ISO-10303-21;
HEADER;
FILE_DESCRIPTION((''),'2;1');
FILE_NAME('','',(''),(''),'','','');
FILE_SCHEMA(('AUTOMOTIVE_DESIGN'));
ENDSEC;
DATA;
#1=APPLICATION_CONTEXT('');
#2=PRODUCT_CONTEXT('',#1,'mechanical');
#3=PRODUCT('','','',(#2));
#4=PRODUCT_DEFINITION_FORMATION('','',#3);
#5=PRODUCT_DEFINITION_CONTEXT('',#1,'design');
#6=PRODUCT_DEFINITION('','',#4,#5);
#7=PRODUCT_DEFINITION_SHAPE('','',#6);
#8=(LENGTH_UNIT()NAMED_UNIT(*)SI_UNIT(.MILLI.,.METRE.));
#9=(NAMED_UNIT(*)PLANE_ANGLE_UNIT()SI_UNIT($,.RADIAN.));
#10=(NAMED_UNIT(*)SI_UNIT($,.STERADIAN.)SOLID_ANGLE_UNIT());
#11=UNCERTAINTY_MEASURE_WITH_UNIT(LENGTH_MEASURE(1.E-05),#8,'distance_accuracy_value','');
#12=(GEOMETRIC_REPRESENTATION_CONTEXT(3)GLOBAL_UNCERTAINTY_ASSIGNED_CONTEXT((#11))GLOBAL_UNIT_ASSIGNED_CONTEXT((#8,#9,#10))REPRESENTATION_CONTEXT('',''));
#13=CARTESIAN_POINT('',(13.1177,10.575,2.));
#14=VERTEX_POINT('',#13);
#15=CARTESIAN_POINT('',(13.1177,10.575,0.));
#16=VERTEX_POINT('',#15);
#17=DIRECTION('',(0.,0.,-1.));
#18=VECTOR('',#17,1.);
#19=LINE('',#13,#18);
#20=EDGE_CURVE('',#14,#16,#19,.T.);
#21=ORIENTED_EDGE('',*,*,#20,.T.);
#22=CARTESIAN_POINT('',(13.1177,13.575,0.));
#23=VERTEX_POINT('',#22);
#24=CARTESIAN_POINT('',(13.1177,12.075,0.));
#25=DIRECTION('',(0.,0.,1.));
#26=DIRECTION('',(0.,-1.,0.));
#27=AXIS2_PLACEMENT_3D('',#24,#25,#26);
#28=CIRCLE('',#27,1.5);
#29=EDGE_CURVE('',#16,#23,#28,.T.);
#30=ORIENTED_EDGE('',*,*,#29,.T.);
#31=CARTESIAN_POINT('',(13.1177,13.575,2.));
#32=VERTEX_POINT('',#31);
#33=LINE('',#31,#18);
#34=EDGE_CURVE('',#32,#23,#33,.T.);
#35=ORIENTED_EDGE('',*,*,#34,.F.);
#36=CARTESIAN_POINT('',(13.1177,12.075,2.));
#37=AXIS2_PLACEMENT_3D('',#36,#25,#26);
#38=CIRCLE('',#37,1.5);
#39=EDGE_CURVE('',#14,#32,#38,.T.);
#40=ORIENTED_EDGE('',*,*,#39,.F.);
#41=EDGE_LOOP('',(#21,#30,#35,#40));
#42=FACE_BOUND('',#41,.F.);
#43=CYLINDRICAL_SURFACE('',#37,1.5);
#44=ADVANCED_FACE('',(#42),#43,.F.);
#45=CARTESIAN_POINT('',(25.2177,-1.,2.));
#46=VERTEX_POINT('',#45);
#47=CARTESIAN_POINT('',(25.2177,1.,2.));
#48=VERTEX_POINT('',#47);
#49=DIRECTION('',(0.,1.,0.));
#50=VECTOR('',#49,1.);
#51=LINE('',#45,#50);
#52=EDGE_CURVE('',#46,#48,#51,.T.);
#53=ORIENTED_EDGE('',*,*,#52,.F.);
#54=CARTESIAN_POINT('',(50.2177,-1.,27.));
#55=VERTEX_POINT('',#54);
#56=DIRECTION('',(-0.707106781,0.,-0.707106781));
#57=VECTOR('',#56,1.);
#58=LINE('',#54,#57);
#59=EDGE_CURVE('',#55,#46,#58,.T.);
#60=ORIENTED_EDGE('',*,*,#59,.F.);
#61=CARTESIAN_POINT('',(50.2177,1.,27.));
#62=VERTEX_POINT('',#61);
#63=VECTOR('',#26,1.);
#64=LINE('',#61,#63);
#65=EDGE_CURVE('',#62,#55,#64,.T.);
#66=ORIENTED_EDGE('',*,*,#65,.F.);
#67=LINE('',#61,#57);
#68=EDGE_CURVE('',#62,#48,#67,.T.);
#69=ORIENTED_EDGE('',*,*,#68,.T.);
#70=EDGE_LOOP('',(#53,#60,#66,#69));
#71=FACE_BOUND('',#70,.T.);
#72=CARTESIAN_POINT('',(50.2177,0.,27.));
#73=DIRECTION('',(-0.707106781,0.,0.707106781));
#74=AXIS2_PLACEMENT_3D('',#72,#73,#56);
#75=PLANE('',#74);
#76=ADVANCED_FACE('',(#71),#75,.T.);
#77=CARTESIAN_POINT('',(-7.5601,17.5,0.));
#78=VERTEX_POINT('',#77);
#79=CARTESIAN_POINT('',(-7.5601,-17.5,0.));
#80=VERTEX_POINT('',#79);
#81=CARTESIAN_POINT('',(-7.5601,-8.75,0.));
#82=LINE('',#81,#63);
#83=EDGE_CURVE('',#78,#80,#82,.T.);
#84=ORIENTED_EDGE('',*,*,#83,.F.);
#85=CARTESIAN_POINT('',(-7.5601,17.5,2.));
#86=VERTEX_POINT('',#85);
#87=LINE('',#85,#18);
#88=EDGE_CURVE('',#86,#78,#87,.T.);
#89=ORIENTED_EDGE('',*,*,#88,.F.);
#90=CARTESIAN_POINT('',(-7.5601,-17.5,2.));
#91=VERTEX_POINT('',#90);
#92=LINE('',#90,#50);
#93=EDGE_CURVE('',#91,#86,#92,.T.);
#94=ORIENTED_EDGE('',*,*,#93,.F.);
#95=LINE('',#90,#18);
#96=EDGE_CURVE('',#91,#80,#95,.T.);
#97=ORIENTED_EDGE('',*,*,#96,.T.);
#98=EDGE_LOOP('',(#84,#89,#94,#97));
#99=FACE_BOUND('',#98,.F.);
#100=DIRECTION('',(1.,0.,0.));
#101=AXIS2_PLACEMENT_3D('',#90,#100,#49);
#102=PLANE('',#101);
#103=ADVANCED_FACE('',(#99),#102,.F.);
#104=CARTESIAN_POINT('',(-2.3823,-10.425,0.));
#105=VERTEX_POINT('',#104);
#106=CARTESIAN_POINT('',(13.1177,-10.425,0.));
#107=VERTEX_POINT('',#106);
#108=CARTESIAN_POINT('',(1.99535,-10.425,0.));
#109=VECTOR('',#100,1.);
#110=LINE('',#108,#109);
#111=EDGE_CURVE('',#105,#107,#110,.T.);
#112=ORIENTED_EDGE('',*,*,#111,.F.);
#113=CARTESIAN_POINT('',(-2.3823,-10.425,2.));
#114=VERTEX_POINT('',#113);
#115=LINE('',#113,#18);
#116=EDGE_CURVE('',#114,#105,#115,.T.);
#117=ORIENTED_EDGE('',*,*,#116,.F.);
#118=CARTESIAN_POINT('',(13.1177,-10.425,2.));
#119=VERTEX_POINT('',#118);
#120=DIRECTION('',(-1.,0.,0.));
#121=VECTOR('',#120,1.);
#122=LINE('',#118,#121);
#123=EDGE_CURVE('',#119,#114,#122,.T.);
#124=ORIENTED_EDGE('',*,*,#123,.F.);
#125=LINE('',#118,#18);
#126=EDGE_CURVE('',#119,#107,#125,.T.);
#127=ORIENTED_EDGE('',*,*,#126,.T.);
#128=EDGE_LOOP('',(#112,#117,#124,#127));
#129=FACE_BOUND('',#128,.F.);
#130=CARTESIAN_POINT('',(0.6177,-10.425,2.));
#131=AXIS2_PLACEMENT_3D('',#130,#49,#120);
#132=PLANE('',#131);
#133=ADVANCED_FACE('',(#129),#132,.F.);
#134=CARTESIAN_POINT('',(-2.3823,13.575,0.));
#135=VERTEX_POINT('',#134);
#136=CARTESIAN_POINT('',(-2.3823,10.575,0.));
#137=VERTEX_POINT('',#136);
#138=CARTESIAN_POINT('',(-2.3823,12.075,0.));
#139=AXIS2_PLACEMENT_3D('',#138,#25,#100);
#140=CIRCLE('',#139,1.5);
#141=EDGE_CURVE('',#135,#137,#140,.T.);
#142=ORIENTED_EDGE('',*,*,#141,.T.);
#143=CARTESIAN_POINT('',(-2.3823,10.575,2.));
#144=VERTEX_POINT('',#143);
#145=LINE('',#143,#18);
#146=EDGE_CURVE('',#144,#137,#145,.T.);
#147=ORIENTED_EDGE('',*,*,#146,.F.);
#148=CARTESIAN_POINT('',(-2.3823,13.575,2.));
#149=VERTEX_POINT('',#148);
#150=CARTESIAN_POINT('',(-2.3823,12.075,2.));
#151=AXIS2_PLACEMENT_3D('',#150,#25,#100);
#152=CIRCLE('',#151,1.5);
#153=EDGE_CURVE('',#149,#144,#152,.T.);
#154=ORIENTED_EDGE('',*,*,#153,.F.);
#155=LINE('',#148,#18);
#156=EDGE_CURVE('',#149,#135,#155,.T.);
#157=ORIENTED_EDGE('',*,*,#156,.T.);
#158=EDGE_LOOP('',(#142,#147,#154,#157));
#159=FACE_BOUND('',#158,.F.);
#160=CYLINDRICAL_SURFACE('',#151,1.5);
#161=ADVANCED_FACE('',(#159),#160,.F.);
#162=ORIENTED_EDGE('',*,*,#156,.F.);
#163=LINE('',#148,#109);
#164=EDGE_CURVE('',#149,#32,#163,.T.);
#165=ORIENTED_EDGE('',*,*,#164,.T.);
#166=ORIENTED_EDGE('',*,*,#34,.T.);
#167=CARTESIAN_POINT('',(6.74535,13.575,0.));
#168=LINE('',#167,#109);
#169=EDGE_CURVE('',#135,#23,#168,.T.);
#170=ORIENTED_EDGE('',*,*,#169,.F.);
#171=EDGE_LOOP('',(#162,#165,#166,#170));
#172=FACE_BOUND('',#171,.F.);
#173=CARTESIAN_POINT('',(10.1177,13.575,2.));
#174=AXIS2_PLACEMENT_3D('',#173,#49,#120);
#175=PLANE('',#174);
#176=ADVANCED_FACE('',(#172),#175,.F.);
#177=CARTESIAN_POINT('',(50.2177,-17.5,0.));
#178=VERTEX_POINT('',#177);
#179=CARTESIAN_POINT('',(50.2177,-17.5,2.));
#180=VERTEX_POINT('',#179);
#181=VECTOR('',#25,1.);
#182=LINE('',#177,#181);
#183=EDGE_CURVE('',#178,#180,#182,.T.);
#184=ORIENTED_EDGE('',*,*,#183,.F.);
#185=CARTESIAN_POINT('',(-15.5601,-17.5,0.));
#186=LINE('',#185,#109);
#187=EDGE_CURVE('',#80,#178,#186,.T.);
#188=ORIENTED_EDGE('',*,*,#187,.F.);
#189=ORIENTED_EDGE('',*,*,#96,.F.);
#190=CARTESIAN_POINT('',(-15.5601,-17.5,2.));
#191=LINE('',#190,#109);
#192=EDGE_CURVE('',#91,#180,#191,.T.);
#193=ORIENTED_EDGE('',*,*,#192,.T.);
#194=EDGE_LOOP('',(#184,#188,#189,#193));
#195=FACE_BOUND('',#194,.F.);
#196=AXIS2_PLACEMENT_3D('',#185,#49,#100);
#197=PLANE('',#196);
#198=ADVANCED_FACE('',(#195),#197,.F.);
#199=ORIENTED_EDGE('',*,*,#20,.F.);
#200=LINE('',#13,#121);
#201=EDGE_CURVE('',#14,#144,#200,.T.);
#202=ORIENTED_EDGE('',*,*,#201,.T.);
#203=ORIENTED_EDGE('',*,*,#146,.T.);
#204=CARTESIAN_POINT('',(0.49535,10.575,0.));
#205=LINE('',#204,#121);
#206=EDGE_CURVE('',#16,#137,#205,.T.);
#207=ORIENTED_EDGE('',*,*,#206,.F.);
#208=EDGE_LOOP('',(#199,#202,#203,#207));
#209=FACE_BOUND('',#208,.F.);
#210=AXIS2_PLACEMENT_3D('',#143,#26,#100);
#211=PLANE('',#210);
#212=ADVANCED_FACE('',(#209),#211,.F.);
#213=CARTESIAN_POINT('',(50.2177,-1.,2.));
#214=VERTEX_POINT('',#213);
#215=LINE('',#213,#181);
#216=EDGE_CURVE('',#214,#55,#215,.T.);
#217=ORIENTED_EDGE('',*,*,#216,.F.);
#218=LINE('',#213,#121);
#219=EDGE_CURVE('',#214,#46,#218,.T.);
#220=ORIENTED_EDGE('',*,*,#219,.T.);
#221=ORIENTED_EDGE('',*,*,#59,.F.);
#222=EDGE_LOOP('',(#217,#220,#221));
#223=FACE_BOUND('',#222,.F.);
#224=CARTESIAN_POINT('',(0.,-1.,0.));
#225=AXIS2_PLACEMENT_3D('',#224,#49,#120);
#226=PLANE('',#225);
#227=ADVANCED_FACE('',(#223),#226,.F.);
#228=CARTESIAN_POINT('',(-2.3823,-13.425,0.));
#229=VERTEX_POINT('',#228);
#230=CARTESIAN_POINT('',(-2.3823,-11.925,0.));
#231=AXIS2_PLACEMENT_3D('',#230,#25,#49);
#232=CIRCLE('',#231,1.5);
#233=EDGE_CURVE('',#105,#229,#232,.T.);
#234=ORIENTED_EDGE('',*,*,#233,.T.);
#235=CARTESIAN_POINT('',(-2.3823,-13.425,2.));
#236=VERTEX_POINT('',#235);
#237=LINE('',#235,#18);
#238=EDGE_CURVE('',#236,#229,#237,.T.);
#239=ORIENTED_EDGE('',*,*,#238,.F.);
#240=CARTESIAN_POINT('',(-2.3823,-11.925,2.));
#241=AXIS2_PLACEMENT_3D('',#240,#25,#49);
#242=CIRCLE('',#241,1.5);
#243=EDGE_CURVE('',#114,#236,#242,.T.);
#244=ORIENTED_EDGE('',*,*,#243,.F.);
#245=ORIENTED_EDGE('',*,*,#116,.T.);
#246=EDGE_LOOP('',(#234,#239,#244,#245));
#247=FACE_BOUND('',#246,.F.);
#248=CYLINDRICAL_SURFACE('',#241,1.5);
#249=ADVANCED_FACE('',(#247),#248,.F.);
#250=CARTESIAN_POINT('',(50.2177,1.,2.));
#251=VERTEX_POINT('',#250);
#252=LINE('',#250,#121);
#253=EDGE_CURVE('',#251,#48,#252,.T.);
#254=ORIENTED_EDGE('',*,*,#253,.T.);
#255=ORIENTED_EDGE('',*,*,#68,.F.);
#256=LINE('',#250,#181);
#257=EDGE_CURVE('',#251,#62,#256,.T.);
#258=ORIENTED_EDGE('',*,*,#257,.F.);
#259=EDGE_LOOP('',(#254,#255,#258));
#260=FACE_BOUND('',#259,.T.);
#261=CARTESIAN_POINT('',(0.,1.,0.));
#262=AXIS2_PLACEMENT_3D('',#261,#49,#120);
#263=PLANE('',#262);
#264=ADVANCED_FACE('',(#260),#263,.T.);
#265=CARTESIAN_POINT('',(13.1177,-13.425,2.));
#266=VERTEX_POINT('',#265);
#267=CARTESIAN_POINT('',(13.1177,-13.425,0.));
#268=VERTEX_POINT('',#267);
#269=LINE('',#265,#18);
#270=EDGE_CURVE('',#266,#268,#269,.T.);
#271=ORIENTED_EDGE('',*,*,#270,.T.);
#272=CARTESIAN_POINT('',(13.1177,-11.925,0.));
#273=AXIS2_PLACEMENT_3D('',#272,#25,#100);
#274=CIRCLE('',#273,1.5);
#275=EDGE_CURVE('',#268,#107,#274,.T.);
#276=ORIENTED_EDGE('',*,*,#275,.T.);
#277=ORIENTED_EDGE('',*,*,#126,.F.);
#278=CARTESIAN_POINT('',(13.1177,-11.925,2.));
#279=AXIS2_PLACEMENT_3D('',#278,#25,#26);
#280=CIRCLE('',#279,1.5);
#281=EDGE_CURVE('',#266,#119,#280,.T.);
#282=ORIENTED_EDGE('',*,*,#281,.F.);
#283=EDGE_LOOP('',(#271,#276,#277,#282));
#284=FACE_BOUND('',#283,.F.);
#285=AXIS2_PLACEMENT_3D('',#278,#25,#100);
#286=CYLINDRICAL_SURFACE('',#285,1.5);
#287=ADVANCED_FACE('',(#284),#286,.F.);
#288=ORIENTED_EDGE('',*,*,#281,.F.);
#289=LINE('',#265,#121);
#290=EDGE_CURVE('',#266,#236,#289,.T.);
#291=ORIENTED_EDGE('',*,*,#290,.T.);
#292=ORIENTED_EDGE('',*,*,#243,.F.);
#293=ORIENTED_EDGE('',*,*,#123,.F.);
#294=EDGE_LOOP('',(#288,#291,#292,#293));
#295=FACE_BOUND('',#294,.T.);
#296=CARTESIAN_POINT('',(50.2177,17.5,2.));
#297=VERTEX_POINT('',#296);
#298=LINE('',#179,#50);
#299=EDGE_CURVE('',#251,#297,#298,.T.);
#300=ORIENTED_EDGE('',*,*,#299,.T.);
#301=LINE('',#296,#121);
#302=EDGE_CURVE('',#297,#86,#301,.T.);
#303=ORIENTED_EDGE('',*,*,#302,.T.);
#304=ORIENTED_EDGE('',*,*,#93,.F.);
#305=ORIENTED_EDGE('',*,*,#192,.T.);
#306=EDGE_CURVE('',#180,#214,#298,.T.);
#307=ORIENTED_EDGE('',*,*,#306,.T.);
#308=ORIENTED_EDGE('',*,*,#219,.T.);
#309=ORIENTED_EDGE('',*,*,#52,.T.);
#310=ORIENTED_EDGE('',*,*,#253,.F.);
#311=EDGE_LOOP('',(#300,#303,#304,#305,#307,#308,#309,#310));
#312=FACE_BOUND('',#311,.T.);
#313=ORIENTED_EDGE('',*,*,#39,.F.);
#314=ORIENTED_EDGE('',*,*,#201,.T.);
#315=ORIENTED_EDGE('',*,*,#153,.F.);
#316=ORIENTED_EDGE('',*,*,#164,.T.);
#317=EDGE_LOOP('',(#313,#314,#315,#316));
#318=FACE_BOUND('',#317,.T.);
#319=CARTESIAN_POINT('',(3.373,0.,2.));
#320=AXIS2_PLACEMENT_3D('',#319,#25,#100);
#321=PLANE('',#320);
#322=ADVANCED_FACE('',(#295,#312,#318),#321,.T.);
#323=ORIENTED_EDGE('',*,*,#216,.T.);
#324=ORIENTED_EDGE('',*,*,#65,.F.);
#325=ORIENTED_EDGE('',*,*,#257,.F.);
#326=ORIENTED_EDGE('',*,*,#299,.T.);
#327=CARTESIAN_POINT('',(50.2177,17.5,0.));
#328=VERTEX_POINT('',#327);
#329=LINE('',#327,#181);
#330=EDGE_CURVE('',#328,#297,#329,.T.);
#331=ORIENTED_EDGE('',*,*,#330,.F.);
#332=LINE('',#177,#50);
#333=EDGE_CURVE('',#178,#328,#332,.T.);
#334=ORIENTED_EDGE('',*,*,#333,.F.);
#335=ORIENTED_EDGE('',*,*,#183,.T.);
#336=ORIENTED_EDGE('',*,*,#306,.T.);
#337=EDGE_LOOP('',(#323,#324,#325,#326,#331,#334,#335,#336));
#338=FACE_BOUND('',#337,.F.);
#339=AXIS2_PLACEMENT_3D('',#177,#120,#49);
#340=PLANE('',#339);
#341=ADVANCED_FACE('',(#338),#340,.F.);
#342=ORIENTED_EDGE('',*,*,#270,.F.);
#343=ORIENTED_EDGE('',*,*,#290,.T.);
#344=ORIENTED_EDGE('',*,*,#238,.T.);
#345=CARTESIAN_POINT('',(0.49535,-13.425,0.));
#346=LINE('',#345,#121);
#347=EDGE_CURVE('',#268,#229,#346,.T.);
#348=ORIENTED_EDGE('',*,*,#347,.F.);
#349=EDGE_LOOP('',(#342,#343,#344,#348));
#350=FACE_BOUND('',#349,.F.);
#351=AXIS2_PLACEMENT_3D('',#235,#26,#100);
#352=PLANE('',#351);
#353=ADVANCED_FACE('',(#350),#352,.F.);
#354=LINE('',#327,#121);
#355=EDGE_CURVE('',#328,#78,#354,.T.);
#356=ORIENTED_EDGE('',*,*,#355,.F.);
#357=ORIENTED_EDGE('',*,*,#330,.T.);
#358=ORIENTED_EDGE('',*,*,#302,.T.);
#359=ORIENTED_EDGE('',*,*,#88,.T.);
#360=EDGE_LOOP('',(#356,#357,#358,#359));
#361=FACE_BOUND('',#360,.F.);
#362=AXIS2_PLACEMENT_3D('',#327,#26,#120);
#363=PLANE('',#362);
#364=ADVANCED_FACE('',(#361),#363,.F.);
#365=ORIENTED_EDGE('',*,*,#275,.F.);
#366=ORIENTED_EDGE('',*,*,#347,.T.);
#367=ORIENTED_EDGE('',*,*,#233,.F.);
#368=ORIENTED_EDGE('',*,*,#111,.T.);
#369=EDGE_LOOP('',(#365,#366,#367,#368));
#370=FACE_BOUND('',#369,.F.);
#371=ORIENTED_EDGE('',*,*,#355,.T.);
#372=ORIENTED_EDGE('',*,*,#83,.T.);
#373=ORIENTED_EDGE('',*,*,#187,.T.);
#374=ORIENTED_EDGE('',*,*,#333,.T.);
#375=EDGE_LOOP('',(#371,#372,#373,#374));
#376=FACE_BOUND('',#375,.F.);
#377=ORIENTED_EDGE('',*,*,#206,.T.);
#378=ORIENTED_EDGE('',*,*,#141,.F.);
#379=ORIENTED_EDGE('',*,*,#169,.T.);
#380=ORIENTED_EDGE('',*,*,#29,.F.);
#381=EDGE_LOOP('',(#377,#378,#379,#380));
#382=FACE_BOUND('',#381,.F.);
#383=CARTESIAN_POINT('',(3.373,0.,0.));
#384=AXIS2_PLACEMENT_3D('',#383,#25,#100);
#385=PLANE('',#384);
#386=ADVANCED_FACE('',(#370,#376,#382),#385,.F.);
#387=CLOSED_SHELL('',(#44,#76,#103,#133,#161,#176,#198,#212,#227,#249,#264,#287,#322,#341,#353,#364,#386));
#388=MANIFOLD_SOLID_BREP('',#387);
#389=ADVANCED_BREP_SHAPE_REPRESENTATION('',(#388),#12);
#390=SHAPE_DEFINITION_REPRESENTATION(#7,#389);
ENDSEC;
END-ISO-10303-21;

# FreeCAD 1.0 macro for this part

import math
import FreeCAD as App
import Part
import Sketcher

V = App.Vector
Q = App.Units.Quantity

doc = App.newDocument("Part")
body = doc.addObject("PartDesign::Body", "Body")

# Sketch on XY plane
sketch1 = body.newObject("Sketcher::SketchObject", "Sketch")
sketch1.AttachmentSupport = (doc.getObject("XY_Plane"), [""])
sketch1.MapMode = "FlatFace"
sketch1.addGeometry(Part.LineSegment(V(-16, 18, 0), V(-16, -18, 0)), False)
sketch1.addGeometry(Part.LineSegment(V(-16, -18, 0), V(50, -18, 0)), False)
sketch1.addGeometry(Part.LineSegment(V(50, -18, 0), V(50, 18, 0)), False)
sketch1.addGeometry(Part.LineSegment(V(50, 18, 0), V(-16, 18, 0)), False)
sketch1.addConstraint(Sketcher.Constraint("Coincident", 0, 2, 1, 1))
sketch1.addConstraint(Sketcher.Constraint("Coincident", 1, 2, 2, 1))
sketch1.addConstraint(Sketcher.Constraint("Coincident", 2, 2, 3, 1))
sketch1.addConstraint(Sketcher.Constraint("Coincident", 3, 2, 0, 1))
sketch1.addConstraint(Sketcher.Constraint("Vertical", 0))
sketch1.addConstraint(Sketcher.Constraint("Horizontal", 1))
sketch1.addConstraint(Sketcher.Constraint("Vertical", 2))
sketch1.addConstraint(Sketcher.Constraint("Horizontal", 3))
sketch1.addConstraint(Sketcher.Constraint("DistanceY", 0, 2, 0, 1, Q("35 mm")))
sketch1.addConstraint(Sketcher.Constraint("DistanceY", 0, 2, -1, 1, Q("17.5 mm")))
sketch1.addConstraint(Sketcher.Constraint("DistanceX", 0, 2, -1, 1, Q("15.56 mm")))
sketch1.addConstraint(Sketcher.Constraint("DistanceX", 1, 1, 1, 2, Q("65.7778 mm")))
pad1 = body.newObject("PartDesign::Pad", "Pad")
pad1.Profile = sketch1
pad1.Length = 2

# Sketch on XZ plane
sketch2 = body.newObject("Sketcher::SketchObject", "Sketch001")
sketch2.AttachmentSupport = (doc.getObject("XZ_Plane"), [""])
sketch2.MapMode = "FlatFace"
sketch2.addGeometry(Part.LineSegment(V(50, 27, 0), V(50, 2, 0)), False)
sketch2.addGeometry(Part.LineSegment(V(50, 2, 0), V(25, 2, 0)), False)
sketch2.addGeometry(Part.LineSegment(V(25, 2, 0), V(50, 27, 0)), False)
sketch2.addConstraint(Sketcher.Constraint("Coincident", 0, 2, 1, 1))
sketch2.addConstraint(Sketcher.Constraint("Coincident", 1, 2, 2, 1))
sketch2.addConstraint(Sketcher.Constraint("Coincident", 2, 2, 0, 1))
sketch2.addConstraint(Sketcher.Constraint("Vertical", 0))
sketch2.addConstraint(Sketcher.Constraint("Horizontal", 1))
sketch2.addConstraint(Sketcher.Constraint("Equal", 1, 0))
sketch2.addConstraint(Sketcher.Constraint("DistanceX", 1, 2, 1, 1, Q("25 mm")))
sketch2.addConstraint(Sketcher.Constraint("DistanceY", -1, 1, 0, 2, Q("2 mm")))
sketch2.addConstraint(Sketcher.Constraint("DistanceX", -1, 1, 0, 2, Q("50.2177 mm")))
pad2 = body.newObject("PartDesign::Pad", "Pad001")
pad2.Profile = sketch2
pad2.Length = 2
pad2.Midplane = True

# Sketch on XY plane
sketch3 = body.newObject("Sketcher::SketchObject", "Sketch002")
sketch3.AttachmentSupport = (doc.getObject("XY_Plane"), [""])
sketch3.MapMode = "FlatFace"
sketch3.AttachmentOffset = App.Placement(V(0, 0, 2), App.Rotation())
sketch3.addGeometry(Part.LineSegment(V(-8, 18, 0), V(-16, 18, 0)), False)
sketch3.addGeometry(Part.LineSegment(V(-16, 18, 0), V(-16, -18, 0)), False)
sketch3.addGeometry(Part.LineSegment(V(-16, -18, 0), V(-8, -18, 0)), False)
sketch3.addGeometry(Part.LineSegment(V(-8, -18, 0), V(-8, 18, 0)), False)
sketch3.addConstraint(Sketcher.Constraint("Coincident", 0, 2, 1, 1))
sketch3.addConstraint(Sketcher.Constraint("Coincident", 1, 2, 2, 1))
sketch3.addConstraint(Sketcher.Constraint("Coincident", 2, 2, 3, 1))
sketch3.addConstraint(Sketcher.Constraint("Coincident", 3, 2, 0, 1))
sketch3.addConstraint(Sketcher.Constraint("Horizontal", 0))
sketch3.addConstraint(Sketcher.Constraint("Vertical", 1))
sketch3.addConstraint(Sketcher.Constraint("Horizontal", 2))
sketch3.addConstraint(Sketcher.Constraint("Vertical", 3))
sketch3.addConstraint(Sketcher.Constraint("DistanceX", 0, 2, 0, 1, Q("8 mm")))
sketch3.addConstraint(Sketcher.Constraint("DistanceY", 1, 2, 1, 1, Q("35 mm")))
sketch3.addConstraint(Sketcher.Constraint("DistanceY", -1, 1, 0, 2, Q("17.5 mm")))
sketch3.addConstraint(Sketcher.Constraint("DistanceX", 0, 2, -1, 1, Q("15.56 mm")))
pocket1 = body.newObject("PartDesign::Pocket", "Pocket")
pocket1.Profile = sketch3
pocket1.Type = "UpToFirst"

# Sketch on XY plane
sketch4 = body.newObject("Sketcher::SketchObject", "Sketch003")
sketch4.AttachmentSupport = (doc.getObject("XY_Plane"), [""])
sketch4.MapMode = "FlatFace"
sketch4.AttachmentOffset = App.Placement(V(0, 0, 2), App.Rotation())
sketch4.addGeometry(Part.ArcOfCircle(Part.Circle(V(-2.4, 12.1, 0), V(0, 0, 1), 1.5), math.radians(90), math.radians(270)), False)
sketch4.addGeometry(Part.LineSegment(V(-2.4, 10.6, 0), V(13.1, 10.6, 0)), False)
sketch4.addGeometry(Part.ArcOfCircle(Part.Circle(V(13.1, 12.1, 0), V(0, 0, 1), 1.5), math.radians(-90), math.radians(90)), False)
sketch4.addGeometry(Part.LineSegment(V(13.1, 13.6, 0), V(-2.4, 13.6, 0)), False)
sketch4.addGeometry(Part.LineSegment(V(-2.4, -13.4, 0), V(13.1, -13.4, 0)), False)
sketch4.addGeometry(Part.ArcOfCircle(Part.Circle(V(13.1, -11.9, 0), V(0, 0, 1), 1.5), math.radians(-90), math.radians(90)), False)
sketch4.addGeometry(Part.LineSegment(V(13.1, -10.4, 0), V(-2.4, -10.4, 0)), False)
sketch4.addGeometry(Part.ArcOfCircle(Part.Circle(V(-2.4, -11.9, 0), V(0, 0, 1), 1.5), math.radians(90), math.radians(270)), False)
sketch4.addConstraint(Sketcher.Constraint("Tangent", 0, 2, 1, 1))
sketch4.addConstraint(Sketcher.Constraint("Tangent", 1, 2, 2, 1))
sketch4.addConstraint(Sketcher.Constraint("Tangent", 2, 2, 3, 1))
sketch4.addConstraint(Sketcher.Constraint("Tangent", 3, 2, 0, 1))
sketch4.addConstraint(Sketcher.Constraint("Tangent", 4, 2, 5, 1))
sketch4.addConstraint(Sketcher.Constraint("Tangent", 5, 2, 6, 1))
sketch4.addConstraint(Sketcher.Constraint("Tangent", 6, 2, 7, 1))
sketch4.addConstraint(Sketcher.Constraint("Tangent", 7, 2, 4, 1))
sketch4.addConstraint(Sketcher.Constraint("Horizontal", 1))
sketch4.addConstraint(Sketcher.Constraint("Horizontal", 3))
sketch4.addConstraint(Sketcher.Constraint("Horizontal", 4))
sketch4.addConstraint(Sketcher.Constraint("Horizontal", 6))
sketch4.addConstraint(Sketcher.Constraint("Equal", 2, 5))
sketch4.addConstraint(Sketcher.Constraint("Vertical", 2, 3, 5, 3))
sketch4.addConstraint(Sketcher.Constraint("Vertical", 0, 3, 7, 3))
sketch4.addConstraint(Sketcher.Constraint("Radius", 0, Q("1.5 mm")))
sketch4.addConstraint(Sketcher.Constraint("DistanceX", 1, 1, 1, 2, Q("15.5 mm")))
sketch4.addConstraint(Sketcher.Constraint("DistanceY", 5, 3, 2, 3, Q("24 mm")))
sketch4.addConstraint(Sketcher.Constraint("DistanceY", -1, 1, 0, 3, Q("12.075 mm")))
sketch4.addConstraint(Sketcher.Constraint("DistanceX", 0, 3, -1, 1, Q("2.3823 mm")))
pocket2 = body.newObject("PartDesign::Pocket", "Pocket001")
pocket2.Profile = sketch4
pocket2.Type = "UpToFirst"

doc.recompute()
